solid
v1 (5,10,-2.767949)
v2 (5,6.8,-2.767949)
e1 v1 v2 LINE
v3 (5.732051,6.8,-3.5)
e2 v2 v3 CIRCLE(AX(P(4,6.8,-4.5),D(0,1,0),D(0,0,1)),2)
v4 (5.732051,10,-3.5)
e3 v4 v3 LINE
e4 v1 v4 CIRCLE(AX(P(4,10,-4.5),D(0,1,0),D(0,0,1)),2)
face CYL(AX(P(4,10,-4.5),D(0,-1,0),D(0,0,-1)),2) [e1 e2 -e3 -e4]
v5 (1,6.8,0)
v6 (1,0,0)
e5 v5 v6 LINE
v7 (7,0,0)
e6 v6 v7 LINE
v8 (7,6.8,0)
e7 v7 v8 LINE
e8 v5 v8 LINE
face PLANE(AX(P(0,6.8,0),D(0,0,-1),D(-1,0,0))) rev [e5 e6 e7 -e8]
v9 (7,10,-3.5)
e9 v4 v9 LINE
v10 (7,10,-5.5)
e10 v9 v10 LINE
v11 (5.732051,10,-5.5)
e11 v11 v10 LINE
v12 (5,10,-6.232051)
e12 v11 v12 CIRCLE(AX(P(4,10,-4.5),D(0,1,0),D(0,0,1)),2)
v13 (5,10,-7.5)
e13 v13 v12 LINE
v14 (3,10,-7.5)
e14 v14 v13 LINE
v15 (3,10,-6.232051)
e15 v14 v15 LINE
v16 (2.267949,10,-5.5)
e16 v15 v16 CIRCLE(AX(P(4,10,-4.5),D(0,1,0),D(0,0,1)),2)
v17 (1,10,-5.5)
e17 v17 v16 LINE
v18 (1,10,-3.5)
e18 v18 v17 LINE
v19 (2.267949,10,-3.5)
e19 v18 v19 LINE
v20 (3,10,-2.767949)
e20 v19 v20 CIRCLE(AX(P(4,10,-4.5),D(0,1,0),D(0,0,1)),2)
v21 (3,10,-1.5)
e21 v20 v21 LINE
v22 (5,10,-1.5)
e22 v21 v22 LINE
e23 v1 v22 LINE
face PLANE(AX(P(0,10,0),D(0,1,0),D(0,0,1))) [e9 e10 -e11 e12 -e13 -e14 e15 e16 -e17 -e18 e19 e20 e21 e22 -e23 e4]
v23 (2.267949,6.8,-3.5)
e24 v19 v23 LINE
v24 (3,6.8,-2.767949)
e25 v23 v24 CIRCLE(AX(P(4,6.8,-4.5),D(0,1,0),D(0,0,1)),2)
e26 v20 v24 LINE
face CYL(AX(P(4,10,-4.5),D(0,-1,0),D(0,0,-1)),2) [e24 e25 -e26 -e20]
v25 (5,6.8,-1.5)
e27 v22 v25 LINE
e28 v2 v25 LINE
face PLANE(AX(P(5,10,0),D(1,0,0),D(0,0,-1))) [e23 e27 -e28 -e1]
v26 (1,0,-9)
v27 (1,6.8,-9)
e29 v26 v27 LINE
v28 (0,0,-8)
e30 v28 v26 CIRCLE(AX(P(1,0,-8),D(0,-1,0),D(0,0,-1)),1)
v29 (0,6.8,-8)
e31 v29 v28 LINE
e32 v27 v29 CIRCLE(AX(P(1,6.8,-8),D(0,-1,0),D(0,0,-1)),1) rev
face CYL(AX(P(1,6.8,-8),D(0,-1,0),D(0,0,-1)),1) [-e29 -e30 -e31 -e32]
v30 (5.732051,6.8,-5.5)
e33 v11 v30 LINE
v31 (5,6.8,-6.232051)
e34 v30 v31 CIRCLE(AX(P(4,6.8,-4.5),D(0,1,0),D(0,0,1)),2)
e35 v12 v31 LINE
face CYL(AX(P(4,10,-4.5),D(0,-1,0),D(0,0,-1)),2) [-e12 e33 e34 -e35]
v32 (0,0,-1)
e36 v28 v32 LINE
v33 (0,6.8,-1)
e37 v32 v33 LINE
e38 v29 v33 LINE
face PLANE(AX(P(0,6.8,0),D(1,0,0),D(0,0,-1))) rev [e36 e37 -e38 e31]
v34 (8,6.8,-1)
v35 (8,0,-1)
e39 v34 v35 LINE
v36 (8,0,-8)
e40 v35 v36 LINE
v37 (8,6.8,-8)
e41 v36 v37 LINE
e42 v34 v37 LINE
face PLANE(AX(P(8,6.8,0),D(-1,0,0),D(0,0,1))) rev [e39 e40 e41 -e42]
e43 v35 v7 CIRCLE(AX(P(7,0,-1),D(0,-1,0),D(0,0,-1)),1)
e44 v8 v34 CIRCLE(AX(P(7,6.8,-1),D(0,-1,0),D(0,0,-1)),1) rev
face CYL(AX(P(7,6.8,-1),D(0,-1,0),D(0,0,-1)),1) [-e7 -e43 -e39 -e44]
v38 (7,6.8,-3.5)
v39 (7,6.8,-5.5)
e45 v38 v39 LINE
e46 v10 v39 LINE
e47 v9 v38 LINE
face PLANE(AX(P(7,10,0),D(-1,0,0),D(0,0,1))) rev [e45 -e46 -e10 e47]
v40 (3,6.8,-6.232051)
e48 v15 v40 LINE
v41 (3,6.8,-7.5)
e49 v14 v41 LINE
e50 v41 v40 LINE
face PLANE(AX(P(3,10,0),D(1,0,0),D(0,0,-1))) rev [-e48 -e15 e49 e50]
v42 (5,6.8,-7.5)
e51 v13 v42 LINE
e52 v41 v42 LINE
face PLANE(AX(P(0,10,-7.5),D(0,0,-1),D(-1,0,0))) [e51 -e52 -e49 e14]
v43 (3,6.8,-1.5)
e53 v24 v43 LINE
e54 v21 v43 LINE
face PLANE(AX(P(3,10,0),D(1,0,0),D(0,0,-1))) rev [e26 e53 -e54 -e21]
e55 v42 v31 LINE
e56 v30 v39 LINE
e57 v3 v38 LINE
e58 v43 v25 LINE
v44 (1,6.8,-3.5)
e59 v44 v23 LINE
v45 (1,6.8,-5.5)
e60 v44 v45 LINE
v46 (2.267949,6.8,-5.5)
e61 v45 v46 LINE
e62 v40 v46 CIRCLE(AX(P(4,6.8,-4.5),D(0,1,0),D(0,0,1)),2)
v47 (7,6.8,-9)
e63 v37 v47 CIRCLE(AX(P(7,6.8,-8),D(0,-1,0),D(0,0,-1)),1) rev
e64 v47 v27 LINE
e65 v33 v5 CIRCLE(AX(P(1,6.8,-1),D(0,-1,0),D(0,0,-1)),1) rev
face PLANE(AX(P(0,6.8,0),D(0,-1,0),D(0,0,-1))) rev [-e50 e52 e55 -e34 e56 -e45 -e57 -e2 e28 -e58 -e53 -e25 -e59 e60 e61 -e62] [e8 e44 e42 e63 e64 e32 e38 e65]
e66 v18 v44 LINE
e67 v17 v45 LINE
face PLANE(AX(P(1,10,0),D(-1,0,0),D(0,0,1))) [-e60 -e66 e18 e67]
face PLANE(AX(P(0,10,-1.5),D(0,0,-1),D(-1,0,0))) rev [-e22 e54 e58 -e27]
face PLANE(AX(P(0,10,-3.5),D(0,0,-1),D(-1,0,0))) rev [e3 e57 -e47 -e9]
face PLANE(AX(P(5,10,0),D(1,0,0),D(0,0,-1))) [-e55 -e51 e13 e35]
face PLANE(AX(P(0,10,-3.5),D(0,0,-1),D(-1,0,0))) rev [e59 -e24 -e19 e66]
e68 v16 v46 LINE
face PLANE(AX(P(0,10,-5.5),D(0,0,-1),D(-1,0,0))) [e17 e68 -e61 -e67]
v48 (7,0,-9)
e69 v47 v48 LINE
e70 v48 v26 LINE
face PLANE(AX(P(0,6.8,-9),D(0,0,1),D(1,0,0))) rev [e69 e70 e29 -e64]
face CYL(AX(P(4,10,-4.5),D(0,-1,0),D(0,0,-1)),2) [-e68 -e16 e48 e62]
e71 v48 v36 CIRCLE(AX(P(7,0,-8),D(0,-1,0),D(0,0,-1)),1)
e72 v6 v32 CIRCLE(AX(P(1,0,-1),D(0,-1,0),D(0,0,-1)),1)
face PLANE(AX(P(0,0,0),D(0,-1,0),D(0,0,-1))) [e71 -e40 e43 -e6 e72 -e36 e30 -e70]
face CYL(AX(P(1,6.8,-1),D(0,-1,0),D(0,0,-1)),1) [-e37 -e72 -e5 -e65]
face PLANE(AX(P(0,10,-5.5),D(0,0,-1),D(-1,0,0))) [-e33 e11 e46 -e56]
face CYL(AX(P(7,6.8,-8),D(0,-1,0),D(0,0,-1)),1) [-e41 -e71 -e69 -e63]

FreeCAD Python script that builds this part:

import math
import FreeCAD as App
import Part
import Sketcher
from FreeCAD import Vector


def edges_at(feature, points):
    """Names of the edges that pass closest to the given points."""
    edges = feature.Shape.Edges
    near = lambda p: min(range(len(edges)), key=lambda i: edges[i].distToShape(Part.Vertex(*p))[0])
    return sorted({f"Edge{near(p) + 1}" for p in points})


def add_polygon(sketch, points):
    """Adds a closed chain of lines whose ends are joined by coincident constraints."""
    first, n = sketch.GeometryCount, len(points)
    for a, b in zip(points, points[1:] + points[:1]):
        sketch.addGeometry(Part.LineSegment(App.Vector(*a, 0), App.Vector(*b, 0)), False)
    for i in range(n):
        sketch.addConstraint(Sketcher.Constraint("Coincident", first + i, 2, first + (i + 1) % n, 1))

doc = App.newDocument("Part")
body = doc.addObject("PartDesign::Body", "Body")

# Sketch on XZ plane
sketch1 = body.newObject("Sketcher::SketchObject", "Sketch")
sketch1.AttachmentSupport = (doc.getObject("XZ_Plane"), [""])
sketch1.MapMode = "FlatFace"
add_polygon(sketch1, [(0, -9), (0, 0), (8, 0), (8, -9)])  # lines 0-3
sketch1.addConstraint([
    Sketcher.Constraint("Vertical", 0),
    Sketcher.Constraint("Horizontal", 1),
    Sketcher.Constraint("Vertical", 2),
    Sketcher.Constraint("Horizontal", 3),
    Sketcher.Constraint("Coincident", 0, 2, -1, 1),
    Sketcher.Constraint("DistanceX", 1, 1, 1, 2, 8.0),
    Sketcher.Constraint("DistanceY", 0, 1, 0, 2, 9.0),
])
pad1 = body.newObject("PartDesign::Pad", "Pad")
pad1.Profile = sketch1
pad1.Length = 6.8
pad1.Reversed = True
doc.recompute()

fillet = body.newObject("PartDesign::Fillet", "Fillet")
fillet.Base = (pad1, edges_at(pad1, [
    (0, 3.4, -9),
    (8, 3.4, -9),
    (8, 3.4, 0),
    (0, 3.4, 0),
]))
fillet.Radius = 1

# Sketch on XZ plane
sketch2 = body.newObject("Sketcher::SketchObject", "Sketch001")
sketch2.AttachmentSupport = (doc.getObject("XZ_Plane"), [""])
sketch2.MapMode = "FlatFace"
sketch2.AttachmentOffset = App.Placement(Vector(0, 0, -6.8), App.Rotation())
sketch2.addGeometry([
    Part.ArcOfCircle(Part.Circle(Vector(4, -4.5, 0), Vector(0, 0, 1), 2), math.radians(-150), math.radians(-120)),  # 0
    Part.LineSegment(Vector(2.267949, -5.5, 0), Vector(1, -5.5, 0)),  # 1
    Part.LineSegment(Vector(1, -5.5, 0), Vector(1, -3.5, 0)),  # 2
    Part.LineSegment(Vector(1, -3.5, 0), Vector(2.267949, -3.5, 0)),  # 3
    Part.ArcOfCircle(Part.Circle(Vector(4, -4.5, 0), Vector(0, 0, 1), 2), math.radians(120), math.radians(150)),  # 4
    Part.LineSegment(Vector(3, -2.767949, 0), Vector(3, -1.5, 0)),  # 5
    Part.LineSegment(Vector(3, -1.5, 0), Vector(5, -1.5, 0)),  # 6
    Part.LineSegment(Vector(5, -1.5, 0), Vector(5, -2.767949, 0)),  # 7
    Part.ArcOfCircle(Part.Circle(Vector(4, -4.5, 0), Vector(0, 0, 1), 2), math.radians(30), math.radians(60)),  # 8
    Part.LineSegment(Vector(5.732051, -3.5, 0), Vector(7, -3.5, 0)),  # 9
    Part.LineSegment(Vector(7, -3.5, 0), Vector(7, -5.5, 0)),  # 10
    Part.LineSegment(Vector(7, -5.5, 0), Vector(5.732051, -5.5, 0)),  # 11
    Part.ArcOfCircle(Part.Circle(Vector(4, -4.5, 0), Vector(0, 0, 1), 2), math.radians(-60), math.radians(-30)),  # 12
    Part.LineSegment(Vector(5, -6.232051, 0), Vector(5, -7.5, 0)),  # 13
    Part.LineSegment(Vector(5, -7.5, 0), Vector(3, -7.5, 0)),  # 14
    Part.LineSegment(Vector(3, -7.5, 0), Vector(3, -6.232051, 0)),  # 15
], False)
sketch2.addConstraint([
    Sketcher.Constraint("Coincident", 0, 1, 1, 1),
    Sketcher.Constraint("Coincident", 1, 2, 2, 1),
    Sketcher.Constraint("Coincident", 2, 2, 3, 1),
    Sketcher.Constraint("Coincident", 3, 2, 4, 2),
    Sketcher.Constraint("Coincident", 4, 1, 5, 1),
    Sketcher.Constraint("Coincident", 5, 2, 6, 1),
    Sketcher.Constraint("Coincident", 6, 2, 7, 1),
    Sketcher.Constraint("Coincident", 7, 2, 8, 2),
    Sketcher.Constraint("Coincident", 8, 1, 9, 1),
    Sketcher.Constraint("Coincident", 9, 2, 10, 1),
    Sketcher.Constraint("Coincident", 10, 2, 11, 1),
    Sketcher.Constraint("Coincident", 11, 2, 12, 2),
    Sketcher.Constraint("Coincident", 12, 1, 13, 1),
    Sketcher.Constraint("Coincident", 13, 2, 14, 1),
    Sketcher.Constraint("Coincident", 14, 2, 15, 1),
    Sketcher.Constraint("Coincident", 15, 2, 0, 2),
    Sketcher.Constraint("Horizontal", 1),
    Sketcher.Constraint("Vertical", 2),
    Sketcher.Constraint("Horizontal", 3),
    Sketcher.Constraint("Vertical", 5),
    Sketcher.Constraint("Horizontal", 6),
    Sketcher.Constraint("Vertical", 7),
    Sketcher.Constraint("Horizontal", 9),
    Sketcher.Constraint("Vertical", 10),
    Sketcher.Constraint("Horizontal", 11),
    Sketcher.Constraint("Vertical", 13),
    Sketcher.Constraint("Horizontal", 14),
    Sketcher.Constraint("Vertical", 15),
    Sketcher.Constraint("Coincident", 4, 3, 0, 3),
    Sketcher.Constraint("Coincident", 8, 3, 0, 3),
    Sketcher.Constraint("Coincident", 12, 3, 0, 3),
    Sketcher.Constraint("Equal", 0, 4),
    Sketcher.Constraint("Equal", 4, 8),
    Sketcher.Constraint("Equal", 8, 12),
    Sketcher.Constraint("Horizontal", 4, 1, 7, 2),
    Sketcher.Constraint("Horizontal", 3, 2, 8, 1),
    Sketcher.Constraint("Horizontal", 1, 2, 10, 2),
    Sketcher.Constraint("Horizontal", 12, 1, 15, 2),
    Sketcher.Constraint("Vertical", 0, 1, 3, 2),
    Sketcher.Constraint("Vertical", 7, 2, 12, 1),
    Sketcher.Constraint("Equal", 3, 9),
    Sketcher.Constraint("Equal", 14, 2),
    Sketcher.Constraint("Equal", 11, 5),
    Sketcher.Constraint("Equal", 7, 13),
    Sketcher.Constraint("Radius", 0, 2.0),
    Sketcher.Constraint("DistanceX", 6, 1, 6, 2, 2.0),
    Sketcher.Constraint("DistanceX", -1, 1, 0, 3, 4.0),
    Sketcher.Constraint("DistanceX", -1, 1, 1, 2, 1.0),
    Sketcher.Constraint("DistanceY", 0, 3, -1, 1, 4.5),
])
pad2 = body.newObject("PartDesign::Pad", "Pad001")
pad2.Profile = sketch2
pad2.Length = 3.2
pad2.Reversed = True

doc.recompute()
